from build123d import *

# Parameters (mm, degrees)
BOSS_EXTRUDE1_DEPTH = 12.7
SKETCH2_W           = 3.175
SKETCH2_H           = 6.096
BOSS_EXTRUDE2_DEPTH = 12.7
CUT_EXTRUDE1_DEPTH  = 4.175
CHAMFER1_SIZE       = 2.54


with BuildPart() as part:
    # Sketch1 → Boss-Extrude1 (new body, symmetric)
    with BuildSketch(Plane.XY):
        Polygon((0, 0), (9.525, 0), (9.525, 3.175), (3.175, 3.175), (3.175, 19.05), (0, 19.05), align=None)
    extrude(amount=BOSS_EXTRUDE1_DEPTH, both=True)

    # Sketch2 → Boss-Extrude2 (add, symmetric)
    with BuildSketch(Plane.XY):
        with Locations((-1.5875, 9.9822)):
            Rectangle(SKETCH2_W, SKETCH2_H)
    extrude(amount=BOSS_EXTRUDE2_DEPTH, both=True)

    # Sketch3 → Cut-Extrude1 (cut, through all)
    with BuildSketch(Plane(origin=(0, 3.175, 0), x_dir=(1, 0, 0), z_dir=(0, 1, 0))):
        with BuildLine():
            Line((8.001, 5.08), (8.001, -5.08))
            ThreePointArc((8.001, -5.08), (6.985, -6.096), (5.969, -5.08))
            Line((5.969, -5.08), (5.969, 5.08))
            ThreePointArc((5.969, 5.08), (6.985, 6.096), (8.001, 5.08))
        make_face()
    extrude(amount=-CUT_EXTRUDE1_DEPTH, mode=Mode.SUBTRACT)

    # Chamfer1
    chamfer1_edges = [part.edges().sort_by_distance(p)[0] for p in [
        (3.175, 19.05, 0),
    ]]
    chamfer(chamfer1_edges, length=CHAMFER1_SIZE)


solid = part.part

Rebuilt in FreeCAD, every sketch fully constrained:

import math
import FreeCAD as App
import Part
import Sketcher
from FreeCAD import Vector
Q = App.Units.Quantity


def edges_at(feature, points):
    """Names of the edges that pass closest to the given points."""
    edges = feature.Shape.Edges
    near = lambda p: min(range(len(edges)), key=lambda i: edges[i].distToShape(Part.Vertex(*p))[0])
    return sorted({f"Edge{near(p) + 1}" for p in points})

doc = App.newDocument("Part")
body = doc.addObject("PartDesign::Body", "Body")

# Sketch on XY plane
sketch1 = doc.addObject("Sketcher::SketchObject", "Sketch")
body.addObject(sketch1)
sketch1.AttachmentSupport = (doc.XY_Plane, [""])
sketch1.MapMode = "FlatFace"
sketch1.addGeometry([
    Part.LineSegment(Vector(0, 0, 0), Vector(9.5, 0, 0)),  # 0
    Part.LineSegment(Vector(9.5, 0, 0), Vector(9.5, 3.2, 0)),  # 1
    Part.LineSegment(Vector(9.5, 3.2, 0), Vector(3.2, 3.2, 0)),  # 2
    Part.LineSegment(Vector(3.2, 3.2, 0), Vector(3.2, 19.1, 0)),  # 3
    Part.LineSegment(Vector(3.2, 19.1, 0), Vector(0, 19.1, 0)),  # 4
    Part.LineSegment(Vector(0, 19.1, 0), Vector(0, 0, 0)),  # 5
], False)
sketch1.addConstraint([
    Sketcher.Constraint("Coincident", 0, 2, 1, 1),
    Sketcher.Constraint("Coincident", 1, 2, 2, 1),
    Sketcher.Constraint("Coincident", 2, 2, 3, 1),
    Sketcher.Constraint("Coincident", 3, 2, 4, 1),
    Sketcher.Constraint("Coincident", 4, 2, 5, 1),
    Sketcher.Constraint("Coincident", 5, 2, 0, 1),
    Sketcher.Constraint("Horizontal", 0),
    Sketcher.Constraint("Vertical", 1),
    Sketcher.Constraint("Horizontal", 2),
    Sketcher.Constraint("Vertical", 3),
    Sketcher.Constraint("Horizontal", 4),
    Sketcher.Constraint("Vertical", 5),
    Sketcher.Constraint("Coincident", 5, 2, -1, 1),
    Sketcher.Constraint("Equal", 4, 1),
    Sketcher.Constraint("DistanceX", 2, 2, 2, 1, Q("0.25 in")),
    Sketcher.Constraint("DistanceY", 5, 2, 5, 1, Q("0.75 in")),
    Sketcher.Constraint("DistanceX", 0, 1, 0, 2, Q("0.375 in")),
])
pad1 = doc.addObject("PartDesign::Pad", "Pad")
body.addObject(pad1)
pad1.Profile = sketch1
pad1.Length = Q("1 in")
pad1.Midplane = True

# Sketch on XY plane
sketch2 = doc.addObject("Sketcher::SketchObject", "Sketch001")
body.addObject(sketch2)
sketch2.AttachmentSupport = (doc.XY_Plane, [""])
sketch2.MapMode = "FlatFace"
sketch2.addGeometry([
    Part.LineSegment(Vector(-3.2, 13, 0), Vector(-3.2, 6.9, 0)),
    Part.LineSegment(Vector(-3.2, 6.9, 0), Vector(0, 6.9, 0)),
    Part.LineSegment(Vector(0, 6.9, 0), Vector(0, 13, 0)),
    Part.LineSegment(Vector(0, 13, 0), Vector(-3.2, 13, 0)),
], False)
sketch2.addConstraint([
    Sketcher.Constraint("Coincident", 0, 2, 1, 1),
    Sketcher.Constraint("Coincident", 1, 2, 2, 1),
    Sketcher.Constraint("Coincident", 2, 2, 3, 1),
    Sketcher.Constraint("Coincident", 3, 2, 0, 1),
    Sketcher.Constraint("Vertical", 0),
    Sketcher.Constraint("Horizontal", 1),
    Sketcher.Constraint("Vertical", 2),
    Sketcher.Constraint("Horizontal", 3),
    Sketcher.Constraint("PointOnObject", 1, 2, -2),
    Sketcher.Constraint("DistanceY", 0, 2, 0, 1, Q("0.24 in")),
    Sketcher.Constraint("DistanceX", 1, 1, 1, 2, Q("0.125 in")),
    Sketcher.Constraint("DistanceY", -1, 1, 0, 2, Q("0.273 in")),
])
pad2 = doc.addObject("PartDesign::Pad", "Pad001")
body.addObject(pad2)
pad2.Profile = sketch2
pad2.Length = Q("1 in")
pad2.Midplane = True

# Sketch on XZ plane
sketch3 = doc.addObject("Sketcher::SketchObject", "Sketch002")
body.addObject(sketch3)
sketch3.AttachmentSupport = (doc.XZ_Plane, [""])
sketch3.MapMode = "FlatFace"
sketch3.AttachmentOffset = App.Placement(Vector(0, 0, -0.125 * 25.4), App.Rotation())
sketch3.addGeometry([
    Part.LineSegment(Vector(8, 5.1, 0), Vector(8, -5.1, 0)),
    Part.ArcOfCircle(Part.Circle(Vector(7, -5.1, 0), Vector(0, 0, 1), 1), math.radians(180), math.radians(360)),
    Part.LineSegment(Vector(6, -5.1, 0), Vector(6, 5.1, 0)),
    Part.ArcOfCircle(Part.Circle(Vector(7, 5.1, 0), Vector(0, 0, 1), 1), math.radians(0), math.radians(180)),
], False)
sketch3.addConstraint([
    Sketcher.Constraint("Tangent", 0, 2, 1, 2),
    Sketcher.Constraint("Tangent", 1, 1, 2, 1),
    Sketcher.Constraint("Tangent", 2, 2, 3, 2),
    Sketcher.Constraint("Tangent", 3, 1, 0, 1),
    Sketcher.Constraint("Vertical", 0),
    Sketcher.Constraint("Vertical", 2),
    Sketcher.Constraint("Radius", 1, Q("0.04 in")),
    Sketcher.Constraint("DistanceY", 0, 2, 0, 1, Q("0.4 in")),
    Sketcher.Constraint("DistanceY", 1, 3, -1, 1, Q("0.2 in")),
    Sketcher.Constraint("DistanceX", -1, 1, 1, 3, Q("0.275 in")),
])
pocket1 = doc.addObject("PartDesign::Pocket", "Pocket")
body.addObject(pocket1)
pocket1.Profile = sketch3
pocket1.Type = "ThroughAll"
pocket1.Reversed = True
doc.recompute()

chamfer = doc.addObject("PartDesign::Chamfer", "Chamfer")
body.addObject(chamfer)
chamfer.Base = (pocket1, edges_at(pocket1, [(3.175, 19.05, 0)]))
chamfer.Size = Q("0.1 in")

doc.recompute()
